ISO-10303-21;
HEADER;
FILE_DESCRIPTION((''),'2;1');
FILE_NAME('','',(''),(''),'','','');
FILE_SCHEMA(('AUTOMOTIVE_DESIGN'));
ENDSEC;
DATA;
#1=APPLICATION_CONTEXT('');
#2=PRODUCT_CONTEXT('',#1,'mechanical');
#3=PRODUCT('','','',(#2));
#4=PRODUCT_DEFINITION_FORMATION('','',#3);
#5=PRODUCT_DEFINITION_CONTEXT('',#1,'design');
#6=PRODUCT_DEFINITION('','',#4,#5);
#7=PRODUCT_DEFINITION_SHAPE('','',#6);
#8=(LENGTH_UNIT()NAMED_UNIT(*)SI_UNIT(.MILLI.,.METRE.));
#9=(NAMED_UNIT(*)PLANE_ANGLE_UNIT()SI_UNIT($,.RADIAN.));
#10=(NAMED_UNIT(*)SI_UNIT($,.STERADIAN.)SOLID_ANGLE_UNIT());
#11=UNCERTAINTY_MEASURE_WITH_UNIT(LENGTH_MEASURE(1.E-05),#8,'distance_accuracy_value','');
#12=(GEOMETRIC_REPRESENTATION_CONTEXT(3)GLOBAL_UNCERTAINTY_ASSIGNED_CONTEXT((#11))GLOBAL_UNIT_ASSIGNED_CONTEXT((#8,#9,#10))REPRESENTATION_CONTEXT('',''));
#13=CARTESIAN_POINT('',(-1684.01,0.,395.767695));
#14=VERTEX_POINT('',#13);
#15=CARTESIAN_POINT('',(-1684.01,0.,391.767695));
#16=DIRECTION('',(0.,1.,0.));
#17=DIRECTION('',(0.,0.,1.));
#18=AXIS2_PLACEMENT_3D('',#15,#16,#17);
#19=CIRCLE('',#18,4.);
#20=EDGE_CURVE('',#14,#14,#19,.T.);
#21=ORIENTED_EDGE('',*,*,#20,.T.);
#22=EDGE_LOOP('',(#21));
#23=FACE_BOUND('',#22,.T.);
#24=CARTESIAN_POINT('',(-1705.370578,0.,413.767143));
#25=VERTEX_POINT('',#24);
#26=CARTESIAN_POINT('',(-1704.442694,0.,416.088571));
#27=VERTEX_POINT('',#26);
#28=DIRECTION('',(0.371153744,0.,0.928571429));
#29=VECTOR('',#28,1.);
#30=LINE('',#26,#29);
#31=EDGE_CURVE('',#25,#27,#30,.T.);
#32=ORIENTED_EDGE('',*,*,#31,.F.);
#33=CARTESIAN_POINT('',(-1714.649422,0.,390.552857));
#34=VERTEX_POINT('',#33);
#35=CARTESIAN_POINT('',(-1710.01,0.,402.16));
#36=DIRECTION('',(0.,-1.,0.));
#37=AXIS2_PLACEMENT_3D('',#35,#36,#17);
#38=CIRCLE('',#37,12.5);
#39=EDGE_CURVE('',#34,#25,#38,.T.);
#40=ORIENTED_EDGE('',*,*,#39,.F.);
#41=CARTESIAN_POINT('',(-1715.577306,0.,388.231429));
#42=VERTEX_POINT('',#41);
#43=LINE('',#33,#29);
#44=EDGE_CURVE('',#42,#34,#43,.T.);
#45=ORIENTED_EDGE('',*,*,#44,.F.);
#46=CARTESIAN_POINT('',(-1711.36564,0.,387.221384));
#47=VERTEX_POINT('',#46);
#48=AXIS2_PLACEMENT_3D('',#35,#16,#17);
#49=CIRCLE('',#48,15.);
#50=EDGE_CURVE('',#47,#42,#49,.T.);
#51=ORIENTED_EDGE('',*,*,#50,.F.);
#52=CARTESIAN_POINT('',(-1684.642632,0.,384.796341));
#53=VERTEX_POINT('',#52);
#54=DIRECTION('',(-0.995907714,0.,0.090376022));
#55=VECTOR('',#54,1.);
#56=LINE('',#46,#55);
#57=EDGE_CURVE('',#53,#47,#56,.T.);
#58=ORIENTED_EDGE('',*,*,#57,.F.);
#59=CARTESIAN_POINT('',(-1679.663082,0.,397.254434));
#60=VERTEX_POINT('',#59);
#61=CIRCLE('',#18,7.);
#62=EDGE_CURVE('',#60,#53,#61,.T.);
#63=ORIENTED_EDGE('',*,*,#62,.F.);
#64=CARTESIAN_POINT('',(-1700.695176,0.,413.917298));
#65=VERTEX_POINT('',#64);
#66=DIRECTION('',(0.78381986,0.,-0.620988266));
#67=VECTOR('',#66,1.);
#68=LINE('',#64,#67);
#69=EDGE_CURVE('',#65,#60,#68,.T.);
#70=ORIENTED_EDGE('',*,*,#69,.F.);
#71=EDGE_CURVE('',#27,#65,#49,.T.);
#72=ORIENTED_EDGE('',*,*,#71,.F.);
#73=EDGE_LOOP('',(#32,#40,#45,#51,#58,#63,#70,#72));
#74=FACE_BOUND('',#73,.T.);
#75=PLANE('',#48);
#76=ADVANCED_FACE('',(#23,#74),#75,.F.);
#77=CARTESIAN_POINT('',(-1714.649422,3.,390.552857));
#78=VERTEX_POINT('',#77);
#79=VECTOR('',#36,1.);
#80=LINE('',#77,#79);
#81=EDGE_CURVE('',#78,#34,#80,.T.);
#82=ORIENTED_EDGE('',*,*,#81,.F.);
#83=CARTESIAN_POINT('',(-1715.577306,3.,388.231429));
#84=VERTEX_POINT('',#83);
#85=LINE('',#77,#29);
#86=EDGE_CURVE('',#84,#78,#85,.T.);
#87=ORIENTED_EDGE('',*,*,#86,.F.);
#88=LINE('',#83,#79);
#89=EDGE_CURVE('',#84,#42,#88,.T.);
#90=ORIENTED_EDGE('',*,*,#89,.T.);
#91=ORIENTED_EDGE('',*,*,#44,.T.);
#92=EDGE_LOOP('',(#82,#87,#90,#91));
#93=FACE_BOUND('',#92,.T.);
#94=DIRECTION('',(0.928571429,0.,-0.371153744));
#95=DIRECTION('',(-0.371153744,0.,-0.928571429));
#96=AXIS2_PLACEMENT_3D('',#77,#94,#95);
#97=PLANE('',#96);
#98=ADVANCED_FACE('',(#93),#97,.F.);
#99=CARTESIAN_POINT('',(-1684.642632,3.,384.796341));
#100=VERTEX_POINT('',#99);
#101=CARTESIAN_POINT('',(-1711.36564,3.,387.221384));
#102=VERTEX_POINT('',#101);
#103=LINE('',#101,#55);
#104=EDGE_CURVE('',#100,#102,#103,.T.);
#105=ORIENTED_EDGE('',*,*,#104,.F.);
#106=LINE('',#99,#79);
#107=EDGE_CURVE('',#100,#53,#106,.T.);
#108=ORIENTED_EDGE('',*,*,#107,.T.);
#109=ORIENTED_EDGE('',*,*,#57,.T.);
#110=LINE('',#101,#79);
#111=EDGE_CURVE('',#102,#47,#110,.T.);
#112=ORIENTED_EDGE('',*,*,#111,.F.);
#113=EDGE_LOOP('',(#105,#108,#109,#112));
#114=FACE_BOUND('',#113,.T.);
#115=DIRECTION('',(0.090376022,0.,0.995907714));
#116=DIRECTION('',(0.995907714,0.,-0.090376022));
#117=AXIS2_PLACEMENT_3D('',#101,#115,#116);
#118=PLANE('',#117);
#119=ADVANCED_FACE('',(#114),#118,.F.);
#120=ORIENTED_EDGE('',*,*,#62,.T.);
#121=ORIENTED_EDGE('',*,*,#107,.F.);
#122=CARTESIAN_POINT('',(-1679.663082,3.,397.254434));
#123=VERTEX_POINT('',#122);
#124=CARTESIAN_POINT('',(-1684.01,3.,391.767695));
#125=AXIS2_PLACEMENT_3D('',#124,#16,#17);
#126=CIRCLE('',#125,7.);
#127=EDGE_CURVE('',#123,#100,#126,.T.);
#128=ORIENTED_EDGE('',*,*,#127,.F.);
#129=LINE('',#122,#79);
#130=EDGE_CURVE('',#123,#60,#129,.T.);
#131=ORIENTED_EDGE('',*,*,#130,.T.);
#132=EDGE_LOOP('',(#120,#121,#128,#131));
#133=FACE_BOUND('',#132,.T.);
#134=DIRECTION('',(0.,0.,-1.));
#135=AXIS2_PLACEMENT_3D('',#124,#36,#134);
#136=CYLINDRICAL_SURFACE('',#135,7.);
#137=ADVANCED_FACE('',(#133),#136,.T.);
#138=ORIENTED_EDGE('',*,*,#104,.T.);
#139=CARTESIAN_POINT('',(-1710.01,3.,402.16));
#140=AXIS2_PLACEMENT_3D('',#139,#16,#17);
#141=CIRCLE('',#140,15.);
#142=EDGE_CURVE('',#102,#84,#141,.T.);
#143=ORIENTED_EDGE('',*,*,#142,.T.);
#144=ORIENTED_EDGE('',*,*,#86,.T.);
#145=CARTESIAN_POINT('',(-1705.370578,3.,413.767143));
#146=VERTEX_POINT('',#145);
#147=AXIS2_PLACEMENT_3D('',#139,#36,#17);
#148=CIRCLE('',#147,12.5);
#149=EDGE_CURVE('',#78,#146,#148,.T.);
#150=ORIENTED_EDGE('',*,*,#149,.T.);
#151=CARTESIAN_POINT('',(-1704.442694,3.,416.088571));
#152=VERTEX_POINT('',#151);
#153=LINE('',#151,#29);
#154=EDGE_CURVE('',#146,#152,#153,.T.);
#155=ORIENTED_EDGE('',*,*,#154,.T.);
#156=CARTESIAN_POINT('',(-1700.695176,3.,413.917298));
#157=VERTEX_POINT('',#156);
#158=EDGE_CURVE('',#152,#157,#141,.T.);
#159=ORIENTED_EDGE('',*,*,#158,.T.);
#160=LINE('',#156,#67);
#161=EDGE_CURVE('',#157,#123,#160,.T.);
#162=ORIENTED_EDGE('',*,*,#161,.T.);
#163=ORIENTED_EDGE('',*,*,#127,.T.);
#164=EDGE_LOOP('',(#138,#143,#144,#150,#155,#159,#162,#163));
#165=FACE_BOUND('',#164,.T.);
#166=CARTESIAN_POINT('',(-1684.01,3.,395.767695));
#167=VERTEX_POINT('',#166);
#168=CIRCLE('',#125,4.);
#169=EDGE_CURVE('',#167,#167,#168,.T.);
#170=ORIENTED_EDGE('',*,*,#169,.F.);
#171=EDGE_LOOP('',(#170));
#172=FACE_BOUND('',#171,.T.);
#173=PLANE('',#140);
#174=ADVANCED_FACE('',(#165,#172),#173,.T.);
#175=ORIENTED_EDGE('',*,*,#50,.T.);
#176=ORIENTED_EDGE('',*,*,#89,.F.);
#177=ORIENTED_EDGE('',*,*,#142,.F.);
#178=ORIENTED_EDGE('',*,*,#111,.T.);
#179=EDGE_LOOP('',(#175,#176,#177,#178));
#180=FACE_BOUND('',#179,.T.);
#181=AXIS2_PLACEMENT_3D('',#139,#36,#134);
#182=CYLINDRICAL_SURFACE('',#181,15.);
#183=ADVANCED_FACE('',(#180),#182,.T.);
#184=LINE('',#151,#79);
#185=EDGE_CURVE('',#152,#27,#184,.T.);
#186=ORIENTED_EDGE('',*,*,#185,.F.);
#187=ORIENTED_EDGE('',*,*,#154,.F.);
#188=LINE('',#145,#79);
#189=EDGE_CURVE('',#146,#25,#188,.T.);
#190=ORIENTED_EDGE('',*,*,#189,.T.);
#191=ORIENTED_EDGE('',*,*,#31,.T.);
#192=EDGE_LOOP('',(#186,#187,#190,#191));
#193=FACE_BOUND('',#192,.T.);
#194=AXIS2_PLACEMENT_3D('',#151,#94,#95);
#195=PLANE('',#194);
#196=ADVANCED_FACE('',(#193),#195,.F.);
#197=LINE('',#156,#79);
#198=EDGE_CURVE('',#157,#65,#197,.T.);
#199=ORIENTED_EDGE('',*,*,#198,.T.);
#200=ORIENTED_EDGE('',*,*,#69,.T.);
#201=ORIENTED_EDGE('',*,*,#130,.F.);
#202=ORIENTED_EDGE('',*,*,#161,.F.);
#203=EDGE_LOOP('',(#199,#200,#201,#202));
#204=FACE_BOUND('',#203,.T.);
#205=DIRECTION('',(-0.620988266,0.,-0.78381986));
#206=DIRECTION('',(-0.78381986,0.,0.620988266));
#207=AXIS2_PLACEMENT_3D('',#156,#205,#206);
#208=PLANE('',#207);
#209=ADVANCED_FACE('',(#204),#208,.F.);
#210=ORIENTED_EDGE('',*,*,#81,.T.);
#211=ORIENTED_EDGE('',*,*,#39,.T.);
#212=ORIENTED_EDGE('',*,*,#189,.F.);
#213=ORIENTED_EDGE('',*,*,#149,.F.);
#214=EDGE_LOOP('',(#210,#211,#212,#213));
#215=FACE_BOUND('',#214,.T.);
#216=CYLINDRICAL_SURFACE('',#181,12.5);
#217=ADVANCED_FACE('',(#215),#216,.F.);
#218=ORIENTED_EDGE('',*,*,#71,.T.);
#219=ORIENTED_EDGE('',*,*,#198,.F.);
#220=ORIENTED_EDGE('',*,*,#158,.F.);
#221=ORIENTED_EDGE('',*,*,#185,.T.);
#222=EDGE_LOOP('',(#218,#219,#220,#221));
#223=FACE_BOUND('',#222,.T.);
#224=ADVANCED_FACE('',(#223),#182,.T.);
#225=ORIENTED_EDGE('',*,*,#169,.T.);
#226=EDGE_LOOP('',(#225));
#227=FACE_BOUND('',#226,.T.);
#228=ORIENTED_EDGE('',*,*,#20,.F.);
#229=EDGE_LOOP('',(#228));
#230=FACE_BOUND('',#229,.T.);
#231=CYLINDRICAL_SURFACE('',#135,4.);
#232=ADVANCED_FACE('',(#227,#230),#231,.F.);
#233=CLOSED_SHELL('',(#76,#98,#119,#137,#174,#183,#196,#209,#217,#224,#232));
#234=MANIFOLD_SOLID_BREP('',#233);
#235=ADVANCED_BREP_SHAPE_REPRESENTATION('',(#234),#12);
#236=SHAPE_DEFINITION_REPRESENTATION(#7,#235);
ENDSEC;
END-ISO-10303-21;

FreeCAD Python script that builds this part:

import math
import FreeCAD as App
import Part
import Sketcher

doc = App.newDocument("Part")
body = doc.addObject("PartDesign::Body", "Body")

# Sketch on XZ plane
sketch1 = body.newObject("Sketcher::SketchObject", "Sketch")
sketch1.AttachmentSupport = (doc.getObject("XZ_Plane"), [""])
sketch1.MapMode = "FlatFace"
sketch1.addGeometry([
    Part.LineSegment(App.Vector(-1700.7, 413.9, 0), App.Vector(-1679.7, 397.3, 0)),  # 0
    Part.ArcOfCircle(Part.Circle(App.Vector(-1684, 391.8, 0), App.Vector(0, 0, 1), 7), math.radians(-95), math.radians(52)),  # 1
    Part.LineSegment(App.Vector(-1684.6, 384.8, 0), App.Vector(-1711.4, 387.2, 0)),  # 2
    Part.ArcOfCircle(Part.Circle(App.Vector(-1710, 402.2, 0), App.Vector(0, 0, 1), 15), math.radians(-111.79), math.radians(-95.19)),  # 3
    Part.LineSegment(App.Vector(-1715.6, 388.2, 0), App.Vector(-1714.6, 390.6, 0)),  # 4
    Part.ArcOfCircle(Part.Circle(App.Vector(-1710, 402.2, 0), App.Vector(0, 0, 1), 12.5), math.radians(-112), math.radians(68)),  # 5
    Part.LineSegment(App.Vector(-1705.4, 413.8, 0), App.Vector(-1704.4, 416.1, 0)),  # 6
    Part.ArcOfCircle(Part.Circle(App.Vector(-1710, 402.2, 0), App.Vector(0, 0, 1), 15), math.radians(51.61), math.radians(68.21)),  # 7
    Part.Circle(App.Vector(-1684, 391.8, 0), App.Vector(0, 0, 1), 4),  # 8
], False)
sketch1.addConstraint([
    Sketcher.Constraint("Tangent", 0, 2, 1, 2),
    Sketcher.Constraint("Tangent", 1, 1, 2, 1),
    Sketcher.Constraint("Tangent", 2, 2, 3, 2),
    Sketcher.Constraint("Coincident", 3, 1, 4, 1),
    Sketcher.Constraint("Coincident", 4, 2, 5, 1),
    Sketcher.Constraint("Coincident", 5, 2, 6, 1),
    Sketcher.Constraint("Coincident", 6, 2, 7, 2),
    Sketcher.Constraint("Tangent", 7, 1, 0, 1),
    Sketcher.Constraint("Coincident", 5, 3, 3, 3),
    Sketcher.Constraint("Coincident", 7, 3, 3, 3),
    Sketcher.Constraint("Coincident", 8, 3, 1, 3),
    Sketcher.Constraint("Equal", 3, 7),
    Sketcher.Constraint("Parallel", 4, 6),
    Sketcher.Constraint("Diameter", 8, 8.0),
    Sketcher.Constraint("Radius", 1, 7.0),
    Sketcher.Constraint("Radius", 3, 15.0),
    Sketcher.Constraint("Radius", 5, 12.5),
    Sketcher.Constraint("DistanceX", 3, 3, 1, 3, 26.0),
    Sketcher.Constraint("DistanceX", 1, 3, -1, 1, 1684.01),
    Sketcher.Constraint("DistanceY", -1, 1, 3, 3, 402.16),
    Sketcher.Constraint("DistanceY", -1, 1, 1, 1, 384.796341),
    Sketcher.Constraint("DistanceY", -1, 1, 3, 1, 388.231429),
    Sketcher.Constraint("DistanceX", 4, 2, -1, 1, 1714.649422),
    Sketcher.Constraint("DistanceX", 5, 2, -1, 1, 1705.370578),
])
pad1 = body.newObject("PartDesign::Pad", "Pad")
pad1.Profile = sketch1
pad1.Length = 3
pad1.Reversed = True

doc.recompute()
